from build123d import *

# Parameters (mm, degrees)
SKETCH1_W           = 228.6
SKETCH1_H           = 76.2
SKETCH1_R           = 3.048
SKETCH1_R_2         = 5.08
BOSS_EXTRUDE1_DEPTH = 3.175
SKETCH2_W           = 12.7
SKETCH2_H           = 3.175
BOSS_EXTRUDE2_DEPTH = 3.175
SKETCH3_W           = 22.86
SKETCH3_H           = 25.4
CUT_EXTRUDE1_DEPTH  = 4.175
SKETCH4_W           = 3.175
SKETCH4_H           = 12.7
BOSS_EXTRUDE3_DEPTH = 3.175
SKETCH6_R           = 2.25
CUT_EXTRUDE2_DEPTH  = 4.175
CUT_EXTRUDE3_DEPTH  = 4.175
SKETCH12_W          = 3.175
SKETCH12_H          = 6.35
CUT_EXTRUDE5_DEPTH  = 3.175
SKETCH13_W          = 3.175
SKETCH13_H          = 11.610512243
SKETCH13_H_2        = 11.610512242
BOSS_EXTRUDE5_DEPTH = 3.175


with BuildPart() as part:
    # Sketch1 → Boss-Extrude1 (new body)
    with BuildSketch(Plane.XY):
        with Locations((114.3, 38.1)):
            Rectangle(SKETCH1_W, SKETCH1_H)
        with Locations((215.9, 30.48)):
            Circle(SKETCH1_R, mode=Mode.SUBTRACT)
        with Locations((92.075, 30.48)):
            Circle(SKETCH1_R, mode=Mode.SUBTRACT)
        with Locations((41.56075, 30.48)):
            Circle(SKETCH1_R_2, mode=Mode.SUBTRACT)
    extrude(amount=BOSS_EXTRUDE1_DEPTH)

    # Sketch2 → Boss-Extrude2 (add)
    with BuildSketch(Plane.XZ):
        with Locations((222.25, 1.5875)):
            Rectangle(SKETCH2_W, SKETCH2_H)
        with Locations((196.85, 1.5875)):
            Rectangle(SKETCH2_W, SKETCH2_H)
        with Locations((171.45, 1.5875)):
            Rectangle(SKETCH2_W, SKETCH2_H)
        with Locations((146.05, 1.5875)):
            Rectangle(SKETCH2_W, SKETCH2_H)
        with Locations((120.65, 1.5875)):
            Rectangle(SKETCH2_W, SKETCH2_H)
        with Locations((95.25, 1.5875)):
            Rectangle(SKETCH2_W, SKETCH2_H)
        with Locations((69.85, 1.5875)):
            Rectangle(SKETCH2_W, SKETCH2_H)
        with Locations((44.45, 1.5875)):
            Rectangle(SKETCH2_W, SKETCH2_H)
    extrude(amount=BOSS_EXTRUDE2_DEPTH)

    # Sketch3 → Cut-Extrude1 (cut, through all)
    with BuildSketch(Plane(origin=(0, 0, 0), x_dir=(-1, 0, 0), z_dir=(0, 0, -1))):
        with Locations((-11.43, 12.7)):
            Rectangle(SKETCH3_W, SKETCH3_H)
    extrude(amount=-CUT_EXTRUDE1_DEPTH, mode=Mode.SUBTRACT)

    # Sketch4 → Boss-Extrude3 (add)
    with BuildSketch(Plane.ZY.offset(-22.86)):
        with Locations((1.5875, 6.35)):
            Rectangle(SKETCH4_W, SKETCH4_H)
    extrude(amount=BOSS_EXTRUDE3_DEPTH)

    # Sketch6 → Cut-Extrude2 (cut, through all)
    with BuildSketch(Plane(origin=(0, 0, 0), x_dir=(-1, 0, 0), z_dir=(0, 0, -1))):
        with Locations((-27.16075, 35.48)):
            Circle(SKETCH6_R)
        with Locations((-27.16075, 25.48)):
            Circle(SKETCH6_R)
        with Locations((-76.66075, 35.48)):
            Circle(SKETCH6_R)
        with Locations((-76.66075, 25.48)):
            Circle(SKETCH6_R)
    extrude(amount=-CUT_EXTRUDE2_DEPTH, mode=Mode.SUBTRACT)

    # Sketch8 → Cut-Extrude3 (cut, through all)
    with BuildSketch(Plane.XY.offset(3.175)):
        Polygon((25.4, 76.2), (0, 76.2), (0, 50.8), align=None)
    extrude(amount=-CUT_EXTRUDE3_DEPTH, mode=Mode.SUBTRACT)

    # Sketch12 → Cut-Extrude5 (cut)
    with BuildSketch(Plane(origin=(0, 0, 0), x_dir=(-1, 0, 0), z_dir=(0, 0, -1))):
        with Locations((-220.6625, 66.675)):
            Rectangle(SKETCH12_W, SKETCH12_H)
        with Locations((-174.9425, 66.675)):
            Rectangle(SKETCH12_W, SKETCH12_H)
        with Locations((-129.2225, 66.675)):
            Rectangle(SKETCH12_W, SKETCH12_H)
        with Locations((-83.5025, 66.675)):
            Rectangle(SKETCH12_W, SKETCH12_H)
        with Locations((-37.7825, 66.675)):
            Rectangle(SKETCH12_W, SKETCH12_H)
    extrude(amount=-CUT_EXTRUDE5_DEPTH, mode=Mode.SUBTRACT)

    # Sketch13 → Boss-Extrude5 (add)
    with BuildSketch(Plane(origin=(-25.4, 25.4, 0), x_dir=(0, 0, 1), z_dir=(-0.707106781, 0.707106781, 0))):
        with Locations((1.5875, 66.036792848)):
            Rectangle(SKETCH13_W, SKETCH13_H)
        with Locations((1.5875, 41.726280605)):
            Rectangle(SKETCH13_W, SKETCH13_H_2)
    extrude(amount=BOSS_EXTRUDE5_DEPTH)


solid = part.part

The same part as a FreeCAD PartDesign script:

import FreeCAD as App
import Part
import Sketcher
Q = App.Units.Quantity


def add_polygon(sketch, points):
    """Adds a closed chain of lines whose ends are joined by coincident constraints."""
    first, n = sketch.GeometryCount, len(points)
    for a, b in zip(points, points[1:] + points[:1]):
        sketch.addGeometry(Part.LineSegment(App.Vector(*a, 0), App.Vector(*b, 0)), False)
    for i in range(n):
        sketch.addConstraint(Sketcher.Constraint("Coincident", first + i, 2, first + (i + 1) % n, 1))

doc = App.newDocument("Part")
params = doc.addObject("Spreadsheet::Sheet", "Params")
for row, (alias, value) in enumerate([
    ("sketch1_diameter", "0.4 in"),
    ("sketch1_diameter2", "0.24 in"),
    ("sketch1_width", "9 in"),
    ("sketch1_height", "3 in"),
    ("pad1_length", "0.125 in"),
    ("sketch2_width", "0.5 in"),
    ("sketch2_height", "0.125 in"),
    ("pad2_length", "0.125 in"),
    ("sketch3_height", "1 in"),
    ("sketch3_width", "0.9 in"),
    ("sketch4_width", "0.5 in"),
    ("sketch4_height", "0.125 in"),
    ("pad3_length", "0.125 in"),
    ("sketch6_width", "1 in"),
    ("sketch7_height", "0.25 in"),
    ("sketch7_width", "0.125 in"),
    ("pocket4_length", "0.125 in"),
    ("sketch8_width", "0.125 in"),
    ("pad4_length", "0.125 in"),
], start=1):
    params.set(f"A{row}", alias)
    params.set(f"B{row}", "=" + value)
    params.setAlias(f"B{row}", alias)

body = doc.addObject("PartDesign::Body", "Body")

# Sketch on XY plane
sketch1 = doc.addObject("Sketcher::SketchObject", "Sketch")
body.addObject(sketch1)
sketch1.AttachmentSupport = (doc.XY_Plane, [""])
sketch1.MapMode = "FlatFace"
add_polygon(sketch1, [(0, 76.2), (0, 0), (228.6, 0), (228.6, 76.2)])  # lines 0-3
sketch1.addGeometry(Part.Circle(App.Vector(41.6, 30.5, 0), App.Vector(0, 0, 1), 5.1), False)  # 4
sketch1.addGeometry(Part.Circle(App.Vector(92.1, 30.5, 0), App.Vector(0, 0, 1), 3), False)  # 5
sketch1.addGeometry(Part.Circle(App.Vector(215.9, 30.5, 0), App.Vector(0, 0, 1), 3), False)  # 6
sketch1.addConstraint(Sketcher.Constraint("Vertical", 0))
sketch1.addConstraint(Sketcher.Constraint("Horizontal", 1))
sketch1.addConstraint(Sketcher.Constraint("Vertical", 2))
sketch1.addConstraint(Sketcher.Constraint("Horizontal", 3))
sketch1.addConstraint(Sketcher.Constraint("Coincident", 0, 2, -1, 1))
sketch1.addConstraint(Sketcher.Constraint("Equal", 5, 6))
sketch1.addConstraint(Sketcher.Constraint("Horizontal", 4, 3, 5, 3))
sketch1.addConstraint(Sketcher.Constraint("Horizontal", 5, 3, 6, 3))
sketch1.addConstraint(Sketcher.Constraint("Diameter", 4, Q("0.4 in")))
sketch1.addConstraint(Sketcher.Constraint("Diameter", 5, Q("0.24 in")))
sketch1.addConstraint(Sketcher.Constraint("DistanceX", 1, 1, 1, 2, Q("9 in")))
sketch1.addConstraint(Sketcher.Constraint("DistanceY", 0, 2, 0, 1, Q("3 in")))
sketch1.addConstraint(Sketcher.Constraint("DistanceY", -1, 1, 4, 3, Q("1.2 in")))
sketch1.addConstraint(Sketcher.Constraint("DistanceX", -1, 1, 6, 3, Q("8.5 in")))
sketch1.addConstraint(Sketcher.Constraint("DistanceX", -1, 1, 5, 3, Q("3.625 in")))
sketch1.addConstraint(Sketcher.Constraint("DistanceX", -1, 1, 4, 3, Q("41.56075 mm")))
sketch1.setExpression("Constraints[12]", "Params.sketch1_diameter")
sketch1.setExpression("Constraints[13]", "Params.sketch1_diameter2")
sketch1.setExpression("Constraints[14]", "Params.sketch1_width")
sketch1.setExpression("Constraints[15]", "Params.sketch1_height")
pad1 = doc.addObject("PartDesign::Pad", "Pad")
body.addObject(pad1)
pad1.Profile = sketch1
pad1.setExpression("Length", "Params.pad1_length")

# Sketch on XZ plane
sketch2 = doc.addObject("Sketcher::SketchObject", "Sketch001")
body.addObject(sketch2)
sketch2.AttachmentSupport = (doc.XZ_Plane, [""])
sketch2.MapMode = "FlatFace"
add_polygon(sketch2, [(215.9, 3.2), (215.9, 0), (228.6, 0), (228.6, 3.2)])  # lines 0-3
add_polygon(sketch2, [(190.5, 3.2), (190.5, 0), (203.2, 0), (203.2, 3.2)])  # lines 4-7
add_polygon(sketch2, [(165.1, 3.2), (165.1, 0), (177.8, 0), (177.8, 3.2)])  # lines 8-11
add_polygon(sketch2, [(139.7, 3.2), (139.7, 0), (152.4, 0), (152.4, 3.2)])  # lines 12-15
add_polygon(sketch2, [(114.3, 3.2), (114.3, 0), (127, 0), (127, 3.2)])  # lines 16-19
add_polygon(sketch2, [(88.9, 3.2), (88.9, 0), (101.6, 0), (101.6, 3.2)])  # lines 20-23
add_polygon(sketch2, [(63.5, 3.2), (63.5, 0), (76.2, 0), (76.2, 3.2)])  # lines 24-27
add_polygon(sketch2, [(38.1, 3.2), (38.1, 0), (50.8, 0), (50.8, 3.2)])  # lines 28-31
sketch2.addConstraint(Sketcher.Constraint("Vertical", 0))
sketch2.addConstraint(Sketcher.Constraint("Horizontal", 1))
sketch2.addConstraint(Sketcher.Constraint("Vertical", 2))
sketch2.addConstraint(Sketcher.Constraint("Horizontal", 3))
sketch2.addConstraint(Sketcher.Constraint("Vertical", 4))
sketch2.addConstraint(Sketcher.Constraint("Horizontal", 5))
sketch2.addConstraint(Sketcher.Constraint("Vertical", 6))
sketch2.addConstraint(Sketcher.Constraint("Horizontal", 7))
sketch2.addConstraint(Sketcher.Constraint("Vertical", 8))
sketch2.addConstraint(Sketcher.Constraint("Horizontal", 9))
sketch2.addConstraint(Sketcher.Constraint("Vertical", 10))
sketch2.addConstraint(Sketcher.Constraint("Horizontal", 11))
sketch2.addConstraint(Sketcher.Constraint("Vertical", 12))
sketch2.addConstraint(Sketcher.Constraint("Horizontal", 13))
sketch2.addConstraint(Sketcher.Constraint("Vertical", 14))
sketch2.addConstraint(Sketcher.Constraint("Horizontal", 15))
sketch2.addConstraint(Sketcher.Constraint("Vertical", 16))
sketch2.addConstraint(Sketcher.Constraint("Horizontal", 17))
sketch2.addConstraint(Sketcher.Constraint("Vertical", 18))
sketch2.addConstraint(Sketcher.Constraint("Horizontal", 19))
sketch2.addConstraint(Sketcher.Constraint("Vertical", 20))
sketch2.addConstraint(Sketcher.Constraint("Horizontal", 21))
sketch2.addConstraint(Sketcher.Constraint("Vertical", 22))
sketch2.addConstraint(Sketcher.Constraint("Horizontal", 23))
sketch2.addConstraint(Sketcher.Constraint("Vertical", 24))
sketch2.addConstraint(Sketcher.Constraint("Horizontal", 25))
sketch2.addConstraint(Sketcher.Constraint("Vertical", 26))
sketch2.addConstraint(Sketcher.Constraint("Horizontal", 27))
sketch2.addConstraint(Sketcher.Constraint("Vertical", 28))
sketch2.addConstraint(Sketcher.Constraint("Horizontal", 29))
sketch2.addConstraint(Sketcher.Constraint("Vertical", 30))
sketch2.addConstraint(Sketcher.Constraint("Horizontal", 31))
sketch2.addConstraint(Sketcher.Constraint("PointOnObject", 0, 2, -1))
sketch2.addConstraint(Sketcher.Constraint("PointOnObject", 4, 2, -1))
sketch2.addConstraint(Sketcher.Constraint("PointOnObject", 8, 2, -1))
sketch2.addConstraint(Sketcher.Constraint("PointOnObject", 12, 2, -1))
sketch2.addConstraint(Sketcher.Constraint("PointOnObject", 16, 2, -1))
sketch2.addConstraint(Sketcher.Constraint("PointOnObject", 20, 2, -1))
sketch2.addConstraint(Sketcher.Constraint("PointOnObject", 24, 2, -1))
sketch2.addConstraint(Sketcher.Constraint("PointOnObject", 28, 2, -1))
sketch2.addConstraint(Sketcher.Constraint("Horizontal", 3, 2, 6, 2))
sketch2.addConstraint(Sketcher.Constraint("Horizontal", 7, 2, 10, 2))
sketch2.addConstraint(Sketcher.Constraint("Horizontal", 11, 2, 14, 2))
sketch2.addConstraint(Sketcher.Constraint("Horizontal", 15, 2, 18, 2))
sketch2.addConstraint(Sketcher.Constraint("Horizontal", 19, 2, 22, 2))
sketch2.addConstraint(Sketcher.Constraint("Horizontal", 23, 2, 26, 2))
sketch2.addConstraint(Sketcher.Constraint("Horizontal", 27, 2, 30, 2))
sketch2.addConstraint(Sketcher.Constraint("Equal", 3, 5))
sketch2.addConstraint(Sketcher.Constraint("Equal", 7, 9))
sketch2.addConstraint(Sketcher.Constraint("Equal", 11, 13))
sketch2.addConstraint(Sketcher.Constraint("Equal", 15, 17))
sketch2.addConstraint(Sketcher.Constraint("Equal", 19, 21))
sketch2.addConstraint(Sketcher.Constraint("Equal", 23, 25))
sketch2.addConstraint(Sketcher.Constraint("Equal", 27, 29))
sketch2.addConstraint(Sketcher.Constraint("DistanceX", 1, 1, 1, 2, Q("0.5 in")))
sketch2.addConstraint(Sketcher.Constraint("DistanceX", -1, 1, 1, 2, Q("9 in")))
sketch2.addConstraint(Sketcher.Constraint("DistanceX", -1, 1, 5, 2, Q("8 in")))
sketch2.addConstraint(Sketcher.Constraint("DistanceX", -1, 1, 9, 2, Q("7 in")))
sketch2.addConstraint(Sketcher.Constraint("DistanceX", -1, 1, 13, 2, Q("6 in")))
sketch2.addConstraint(Sketcher.Constraint("DistanceX", -1, 1, 17, 2, Q("5 in")))
sketch2.addConstraint(Sketcher.Constraint("DistanceX", -1, 1, 21, 2, Q("4 in")))
sketch2.addConstraint(Sketcher.Constraint("DistanceX", -1, 1, 25, 2, Q("3 in")))
sketch2.addConstraint(Sketcher.Constraint("DistanceX", -1, 1, 29, 2, Q("2 in")))
sketch2.addConstraint(Sketcher.Constraint("DistanceY", 0, 2, 0, 1, Q("0.125 in")))
sketch2.setExpression("Constraints[86]", "Params.sketch2_width")
sketch2.setExpression("Constraints[95]", "Params.sketch2_height")
pad2 = doc.addObject("PartDesign::Pad", "Pad001")
body.addObject(pad2)
pad2.Profile = sketch2
pad2.setExpression("Length", "Params.pad2_length")

# Sketch on XY plane
sketch3 = doc.addObject("Sketcher::SketchObject", "Sketch002")
body.addObject(sketch3)
sketch3.AttachmentSupport = (doc.XY_Plane, [""])
sketch3.MapMode = "FlatFace"
add_polygon(sketch3, [(23, 25), (23, 0), (0, 0), (0, 25)])  # lines 0-3
sketch3.addConstraint(Sketcher.Constraint("Vertical", 0))
sketch3.addConstraint(Sketcher.Constraint("Horizontal", 1))
sketch3.addConstraint(Sketcher.Constraint("Vertical", 2))
sketch3.addConstraint(Sketcher.Constraint("Horizontal", 3))
sketch3.addConstraint(Sketcher.Constraint("Coincident", 1, 2, -1, 1))
sketch3.addConstraint(Sketcher.Constraint("DistanceY", 0, 2, 0, 1, Q("1 in")))
sketch3.addConstraint(Sketcher.Constraint("DistanceX", 1, 2, 1, 1, Q("0.9 in")))
sketch3.setExpression("Constraints[9]", "Params.sketch3_height")
sketch3.setExpression("Constraints[10]", "Params.sketch3_width")
pocket1 = doc.addObject("PartDesign::Pocket", "Pocket")
body.addObject(pocket1)
pocket1.Profile = sketch3
pocket1.Type = "ThroughAll"
pocket1.Reversed = True

# Sketch on YZ plane
sketch4 = doc.addObject("Sketcher::SketchObject", "Sketch003")
body.addObject(sketch4)
sketch4.AttachmentSupport = (doc.YZ_Plane, [""])
sketch4.MapMode = "FlatFace"
sketch4.AttachmentOffset = App.Placement(App.Vector(0, 0, 0.9 * 25.4), App.Rotation())
add_polygon(sketch4, [(12.7, 0), (0, 0), (0, 3.2), (12.7, 3.2)])  # lines 0-3
sketch4.addConstraint(Sketcher.Constraint("Horizontal", 0))
sketch4.addConstraint(Sketcher.Constraint("Vertical", 1))
sketch4.addConstraint(Sketcher.Constraint("Horizontal", 2))
sketch4.addConstraint(Sketcher.Constraint("Vertical", 3))
sketch4.addConstraint(Sketcher.Constraint("Coincident", 0, 2, -1, 1))
sketch4.addConstraint(Sketcher.Constraint("DistanceX", 0, 2, 0, 1, Q("0.5 in")))
sketch4.addConstraint(Sketcher.Constraint("DistanceY", 1, 1, 1, 2, Q("0.125 in")))
sketch4.setExpression("Constraints[9]", "Params.sketch4_width")
sketch4.setExpression("Constraints[10]", "Params.sketch4_height")
pad3 = doc.addObject("PartDesign::Pad", "Pad002")
body.addObject(pad3)
pad3.Profile = sketch4
pad3.setExpression("Length", "Params.pad3_length")
pad3.Reversed = True

# Sketch on XY plane
sketch5 = doc.addObject("Sketcher::SketchObject", "Sketch004")
body.addObject(sketch5)
sketch5.AttachmentSupport = (doc.XY_Plane, [""])
sketch5.MapMode = "FlatFace"
sketch5.addGeometry(Part.Circle(App.Vector(27.2, 35.5, 0), App.Vector(0, 0, 1), 2.2), False)
sketch5.addGeometry(Part.Circle(App.Vector(27.2, 25.5, 0), App.Vector(0, 0, 1), 2.2), False)
sketch5.addGeometry(Part.Circle(App.Vector(76.7, 35.5, 0), App.Vector(0, 0, 1), 2.2), False)
sketch5.addGeometry(Part.Circle(App.Vector(76.7, 25.5, 0), App.Vector(0, 0, 1), 2.2), False)
sketch5.addConstraint(Sketcher.Constraint("Equal", 0, 1))
sketch5.addConstraint(Sketcher.Constraint("Equal", 1, 2))
sketch5.addConstraint(Sketcher.Constraint("Equal", 2, 3))
sketch5.addConstraint(Sketcher.Constraint("Horizontal", 0, 3, 2, 3))
sketch5.addConstraint(Sketcher.Constraint("Horizontal", 1, 3, 3, 3))
sketch5.addConstraint(Sketcher.Constraint("Vertical", 0, 3, 1, 3))
sketch5.addConstraint(Sketcher.Constraint("Vertical", 2, 3, 3, 3))
sketch5.addConstraint(Sketcher.Constraint("Diameter", 0, Q("4.5 mm")))
sketch5.addConstraint(Sketcher.Constraint("DistanceY", -1, 1, 0, 3, Q("35.48 mm")))
sketch5.addConstraint(Sketcher.Constraint("DistanceY", -1, 1, 1, 3, Q("25.48 mm")))
sketch5.addConstraint(Sketcher.Constraint("DistanceX", 0, 3, 2, 3, Q("49.5 mm")))
sketch5.addConstraint(Sketcher.Constraint("DistanceX", -1, 1, 0, 3, Q("27.16075 mm")))
pocket2 = doc.addObject("PartDesign::Pocket", "Pocket001")
body.addObject(pocket2)
pocket2.Profile = sketch5
pocket2.Type = "ThroughAll"
pocket2.Reversed = True

# Sketch on XY plane
sketch6 = doc.addObject("Sketcher::SketchObject", "Sketch005")
body.addObject(sketch6)
sketch6.AttachmentSupport = (doc.XY_Plane, [""])
sketch6.MapMode = "FlatFace"
sketch6.AttachmentOffset = App.Placement(App.Vector(0, 0, 0.125 * 25.4), App.Rotation())
add_polygon(sketch6, [(25, 76), (0, 76), (0, 51)])  # lines 0-2
sketch6.addConstraint(Sketcher.Constraint("Horizontal", 0))
sketch6.addConstraint(Sketcher.Constraint("Vertical", 1))
sketch6.addConstraint(Sketcher.Constraint("PointOnObject", 0, 2, -2))
sketch6.addConstraint(Sketcher.Constraint("Equal", 0, 1))
sketch6.addConstraint(Sketcher.Constraint("DistanceX", 0, 2, 0, 1, Q("1 in")))
sketch6.addConstraint(Sketcher.Constraint("DistanceY", -1, 1, 0, 2, Q("3 in")))
sketch6.setExpression("Constraints[7]", "Params.sketch6_width")
pocket3 = doc.addObject("PartDesign::Pocket", "Pocket002")
body.addObject(pocket3)
pocket3.Profile = sketch6
pocket3.Type = "ThroughAll"

# Sketch on XY plane
sketch7 = doc.addObject("Sketcher::SketchObject", "Sketch006")
body.addObject(sketch7)
sketch7.AttachmentSupport = (doc.XY_Plane, [""])
sketch7.MapMode = "FlatFace"
add_polygon(sketch7, [(222.2, 69.8), (222.2, 63.5), (219.1, 63.5), (219.1, 69.8)])  # lines 0-3
add_polygon(sketch7, [(176.5, 69.8), (176.5, 63.5), (173.4, 63.5), (173.4, 69.8)])  # lines 4-7
add_polygon(sketch7, [(130.8, 69.8), (130.8, 63.5), (127.6, 63.5), (127.6, 69.8)])  # lines 8-11
add_polygon(sketch7, [(85.1, 69.8), (85.1, 63.5), (81.9, 63.5), (81.9, 69.8)])  # lines 12-15
add_polygon(sketch7, [(39.4, 69.8), (39.4, 63.5), (36.2, 63.5), (36.2, 69.8)])  # lines 16-19
sketch7.addConstraint(Sketcher.Constraint("Vertical", 0))
sketch7.addConstraint(Sketcher.Constraint("Horizontal", 1))
sketch7.addConstraint(Sketcher.Constraint("Vertical", 2))
sketch7.addConstraint(Sketcher.Constraint("Horizontal", 3))
sketch7.addConstraint(Sketcher.Constraint("Vertical", 4))
sketch7.addConstraint(Sketcher.Constraint("Horizontal", 5))
sketch7.addConstraint(Sketcher.Constraint("Vertical", 6))
sketch7.addConstraint(Sketcher.Constraint("Horizontal", 7))
sketch7.addConstraint(Sketcher.Constraint("Vertical", 8))
sketch7.addConstraint(Sketcher.Constraint("Horizontal", 9))
sketch7.addConstraint(Sketcher.Constraint("Vertical", 10))
sketch7.addConstraint(Sketcher.Constraint("Horizontal", 11))
sketch7.addConstraint(Sketcher.Constraint("Vertical", 12))
sketch7.addConstraint(Sketcher.Constraint("Horizontal", 13))
sketch7.addConstraint(Sketcher.Constraint("Vertical", 14))
sketch7.addConstraint(Sketcher.Constraint("Horizontal", 15))
sketch7.addConstraint(Sketcher.Constraint("Vertical", 16))
sketch7.addConstraint(Sketcher.Constraint("Horizontal", 17))
sketch7.addConstraint(Sketcher.Constraint("Vertical", 18))
sketch7.addConstraint(Sketcher.Constraint("Horizontal", 19))
sketch7.addConstraint(Sketcher.Constraint("Horizontal", 1, 2, 4, 2))
sketch7.addConstraint(Sketcher.Constraint("Horizontal", 3, 2, 6, 2))
sketch7.addConstraint(Sketcher.Constraint("Horizontal", 5, 2, 8, 2))
sketch7.addConstraint(Sketcher.Constraint("Horizontal", 7, 2, 10, 2))
sketch7.addConstraint(Sketcher.Constraint("Horizontal", 9, 2, 12, 2))
sketch7.addConstraint(Sketcher.Constraint("Horizontal", 11, 2, 14, 2))
sketch7.addConstraint(Sketcher.Constraint("Horizontal", 13, 2, 16, 2))
sketch7.addConstraint(Sketcher.Constraint("Horizontal", 15, 2, 18, 2))
sketch7.addConstraint(Sketcher.Constraint("Equal", 3, 5))
sketch7.addConstraint(Sketcher.Constraint("Equal", 7, 9))
sketch7.addConstraint(Sketcher.Constraint("Equal", 11, 13))
sketch7.addConstraint(Sketcher.Constraint("Equal", 15, 17))
sketch7.addConstraint(Sketcher.Constraint("DistanceY", 0, 2, 0, 1, Q("0.25 in")))
sketch7.addConstraint(Sketcher.Constraint("DistanceY", -1, 1, 0, 2, Q("2.5 in")))
sketch7.addConstraint(Sketcher.Constraint("DistanceX", 4, 2, 0, 2, Q("1.8 in")))
sketch7.addConstraint(Sketcher.Constraint("DistanceX", 8, 2, 4, 2, Q("1.8 in")))
sketch7.addConstraint(Sketcher.Constraint("DistanceX", 12, 2, 8, 2, Q("1.8 in")))
sketch7.addConstraint(Sketcher.Constraint("DistanceX", 16, 2, 12, 2, Q("1.8 in")))
sketch7.addConstraint(Sketcher.Constraint("DistanceX", 1, 2, 1, 1, Q("0.125 in")))
sketch7.addConstraint(Sketcher.Constraint("DistanceX", -1, 1, 0, 2, Q("8.75 in")))
sketch7.setExpression("Constraints[52]", "Params.sketch7_height")
sketch7.setExpression("Constraints[58]", "Params.sketch7_width")
pocket4 = doc.addObject("PartDesign::Pocket", "Pocket003")
body.addObject(pocket4)
pocket4.Profile = sketch7
pocket4.setExpression("Length", "Params.pocket4_length")
pocket4.Reversed = True

# Sketch on an angled plane
sketch8 = doc.addObject("Sketcher::SketchObject", "Sketch007")
body.addObject(sketch8)
sketch8.Placement = App.Placement(App.Vector(-25.4, 25.4, 0), App.Rotation(App.Vector(0, 0, 1), App.Vector(0.707106781, 0.707106781, 0), App.Vector(-0.707106781, 0.707106781, 0), "ZXY"))
add_polygon(sketch8, [(0, 71.8), (0, 60.2), (3.2, 60.2), (3.2, 71.8)])  # lines 0-3
add_polygon(sketch8, [(0, 47.5), (0, 35.9), (3.2, 35.9), (3.2, 47.5)])  # lines 4-7
sketch8.addConstraint(Sketcher.Constraint("Vertical", 0))
sketch8.addConstraint(Sketcher.Constraint("Horizontal", 1))
sketch8.addConstraint(Sketcher.Constraint("Vertical", 2))
sketch8.addConstraint(Sketcher.Constraint("Horizontal", 3))
sketch8.addConstraint(Sketcher.Constraint("Vertical", 4))
sketch8.addConstraint(Sketcher.Constraint("Horizontal", 5))
sketch8.addConstraint(Sketcher.Constraint("Vertical", 6))
sketch8.addConstraint(Sketcher.Constraint("Horizontal", 7))
sketch8.addConstraint(Sketcher.Constraint("PointOnObject", 0, 2, -2))
sketch8.addConstraint(Sketcher.Constraint("PointOnObject", 4, 2, -2))
sketch8.addConstraint(Sketcher.Constraint("Vertical", 2, 2, 5, 2))
sketch8.addConstraint(Sketcher.Constraint("Equal", 2, 4))
sketch8.addConstraint(Sketcher.Constraint("DistanceY", 6, 2, 1, 2, Q("0.5 in")))
sketch8.addConstraint(Sketcher.Constraint("DistanceX", 1, 1, 1, 2, Q("0.125 in")))
sketch8.addConstraint(Sketcher.Constraint("DistanceY", 0, 2, 0, 1, Q("11.610512 mm")))
sketch8.addConstraint(Sketcher.Constraint("DistanceY", -1, 1, 2, 2, Q("71.842049 mm")))
sketch8.setExpression("Constraints[21]", "Params.sketch8_width")
pad4 = doc.addObject("PartDesign::Pad", "Pad003")
body.addObject(pad4)
pad4.Profile = sketch8
pad4.setExpression("Length", "Params.pad4_length")

doc.recompute()
